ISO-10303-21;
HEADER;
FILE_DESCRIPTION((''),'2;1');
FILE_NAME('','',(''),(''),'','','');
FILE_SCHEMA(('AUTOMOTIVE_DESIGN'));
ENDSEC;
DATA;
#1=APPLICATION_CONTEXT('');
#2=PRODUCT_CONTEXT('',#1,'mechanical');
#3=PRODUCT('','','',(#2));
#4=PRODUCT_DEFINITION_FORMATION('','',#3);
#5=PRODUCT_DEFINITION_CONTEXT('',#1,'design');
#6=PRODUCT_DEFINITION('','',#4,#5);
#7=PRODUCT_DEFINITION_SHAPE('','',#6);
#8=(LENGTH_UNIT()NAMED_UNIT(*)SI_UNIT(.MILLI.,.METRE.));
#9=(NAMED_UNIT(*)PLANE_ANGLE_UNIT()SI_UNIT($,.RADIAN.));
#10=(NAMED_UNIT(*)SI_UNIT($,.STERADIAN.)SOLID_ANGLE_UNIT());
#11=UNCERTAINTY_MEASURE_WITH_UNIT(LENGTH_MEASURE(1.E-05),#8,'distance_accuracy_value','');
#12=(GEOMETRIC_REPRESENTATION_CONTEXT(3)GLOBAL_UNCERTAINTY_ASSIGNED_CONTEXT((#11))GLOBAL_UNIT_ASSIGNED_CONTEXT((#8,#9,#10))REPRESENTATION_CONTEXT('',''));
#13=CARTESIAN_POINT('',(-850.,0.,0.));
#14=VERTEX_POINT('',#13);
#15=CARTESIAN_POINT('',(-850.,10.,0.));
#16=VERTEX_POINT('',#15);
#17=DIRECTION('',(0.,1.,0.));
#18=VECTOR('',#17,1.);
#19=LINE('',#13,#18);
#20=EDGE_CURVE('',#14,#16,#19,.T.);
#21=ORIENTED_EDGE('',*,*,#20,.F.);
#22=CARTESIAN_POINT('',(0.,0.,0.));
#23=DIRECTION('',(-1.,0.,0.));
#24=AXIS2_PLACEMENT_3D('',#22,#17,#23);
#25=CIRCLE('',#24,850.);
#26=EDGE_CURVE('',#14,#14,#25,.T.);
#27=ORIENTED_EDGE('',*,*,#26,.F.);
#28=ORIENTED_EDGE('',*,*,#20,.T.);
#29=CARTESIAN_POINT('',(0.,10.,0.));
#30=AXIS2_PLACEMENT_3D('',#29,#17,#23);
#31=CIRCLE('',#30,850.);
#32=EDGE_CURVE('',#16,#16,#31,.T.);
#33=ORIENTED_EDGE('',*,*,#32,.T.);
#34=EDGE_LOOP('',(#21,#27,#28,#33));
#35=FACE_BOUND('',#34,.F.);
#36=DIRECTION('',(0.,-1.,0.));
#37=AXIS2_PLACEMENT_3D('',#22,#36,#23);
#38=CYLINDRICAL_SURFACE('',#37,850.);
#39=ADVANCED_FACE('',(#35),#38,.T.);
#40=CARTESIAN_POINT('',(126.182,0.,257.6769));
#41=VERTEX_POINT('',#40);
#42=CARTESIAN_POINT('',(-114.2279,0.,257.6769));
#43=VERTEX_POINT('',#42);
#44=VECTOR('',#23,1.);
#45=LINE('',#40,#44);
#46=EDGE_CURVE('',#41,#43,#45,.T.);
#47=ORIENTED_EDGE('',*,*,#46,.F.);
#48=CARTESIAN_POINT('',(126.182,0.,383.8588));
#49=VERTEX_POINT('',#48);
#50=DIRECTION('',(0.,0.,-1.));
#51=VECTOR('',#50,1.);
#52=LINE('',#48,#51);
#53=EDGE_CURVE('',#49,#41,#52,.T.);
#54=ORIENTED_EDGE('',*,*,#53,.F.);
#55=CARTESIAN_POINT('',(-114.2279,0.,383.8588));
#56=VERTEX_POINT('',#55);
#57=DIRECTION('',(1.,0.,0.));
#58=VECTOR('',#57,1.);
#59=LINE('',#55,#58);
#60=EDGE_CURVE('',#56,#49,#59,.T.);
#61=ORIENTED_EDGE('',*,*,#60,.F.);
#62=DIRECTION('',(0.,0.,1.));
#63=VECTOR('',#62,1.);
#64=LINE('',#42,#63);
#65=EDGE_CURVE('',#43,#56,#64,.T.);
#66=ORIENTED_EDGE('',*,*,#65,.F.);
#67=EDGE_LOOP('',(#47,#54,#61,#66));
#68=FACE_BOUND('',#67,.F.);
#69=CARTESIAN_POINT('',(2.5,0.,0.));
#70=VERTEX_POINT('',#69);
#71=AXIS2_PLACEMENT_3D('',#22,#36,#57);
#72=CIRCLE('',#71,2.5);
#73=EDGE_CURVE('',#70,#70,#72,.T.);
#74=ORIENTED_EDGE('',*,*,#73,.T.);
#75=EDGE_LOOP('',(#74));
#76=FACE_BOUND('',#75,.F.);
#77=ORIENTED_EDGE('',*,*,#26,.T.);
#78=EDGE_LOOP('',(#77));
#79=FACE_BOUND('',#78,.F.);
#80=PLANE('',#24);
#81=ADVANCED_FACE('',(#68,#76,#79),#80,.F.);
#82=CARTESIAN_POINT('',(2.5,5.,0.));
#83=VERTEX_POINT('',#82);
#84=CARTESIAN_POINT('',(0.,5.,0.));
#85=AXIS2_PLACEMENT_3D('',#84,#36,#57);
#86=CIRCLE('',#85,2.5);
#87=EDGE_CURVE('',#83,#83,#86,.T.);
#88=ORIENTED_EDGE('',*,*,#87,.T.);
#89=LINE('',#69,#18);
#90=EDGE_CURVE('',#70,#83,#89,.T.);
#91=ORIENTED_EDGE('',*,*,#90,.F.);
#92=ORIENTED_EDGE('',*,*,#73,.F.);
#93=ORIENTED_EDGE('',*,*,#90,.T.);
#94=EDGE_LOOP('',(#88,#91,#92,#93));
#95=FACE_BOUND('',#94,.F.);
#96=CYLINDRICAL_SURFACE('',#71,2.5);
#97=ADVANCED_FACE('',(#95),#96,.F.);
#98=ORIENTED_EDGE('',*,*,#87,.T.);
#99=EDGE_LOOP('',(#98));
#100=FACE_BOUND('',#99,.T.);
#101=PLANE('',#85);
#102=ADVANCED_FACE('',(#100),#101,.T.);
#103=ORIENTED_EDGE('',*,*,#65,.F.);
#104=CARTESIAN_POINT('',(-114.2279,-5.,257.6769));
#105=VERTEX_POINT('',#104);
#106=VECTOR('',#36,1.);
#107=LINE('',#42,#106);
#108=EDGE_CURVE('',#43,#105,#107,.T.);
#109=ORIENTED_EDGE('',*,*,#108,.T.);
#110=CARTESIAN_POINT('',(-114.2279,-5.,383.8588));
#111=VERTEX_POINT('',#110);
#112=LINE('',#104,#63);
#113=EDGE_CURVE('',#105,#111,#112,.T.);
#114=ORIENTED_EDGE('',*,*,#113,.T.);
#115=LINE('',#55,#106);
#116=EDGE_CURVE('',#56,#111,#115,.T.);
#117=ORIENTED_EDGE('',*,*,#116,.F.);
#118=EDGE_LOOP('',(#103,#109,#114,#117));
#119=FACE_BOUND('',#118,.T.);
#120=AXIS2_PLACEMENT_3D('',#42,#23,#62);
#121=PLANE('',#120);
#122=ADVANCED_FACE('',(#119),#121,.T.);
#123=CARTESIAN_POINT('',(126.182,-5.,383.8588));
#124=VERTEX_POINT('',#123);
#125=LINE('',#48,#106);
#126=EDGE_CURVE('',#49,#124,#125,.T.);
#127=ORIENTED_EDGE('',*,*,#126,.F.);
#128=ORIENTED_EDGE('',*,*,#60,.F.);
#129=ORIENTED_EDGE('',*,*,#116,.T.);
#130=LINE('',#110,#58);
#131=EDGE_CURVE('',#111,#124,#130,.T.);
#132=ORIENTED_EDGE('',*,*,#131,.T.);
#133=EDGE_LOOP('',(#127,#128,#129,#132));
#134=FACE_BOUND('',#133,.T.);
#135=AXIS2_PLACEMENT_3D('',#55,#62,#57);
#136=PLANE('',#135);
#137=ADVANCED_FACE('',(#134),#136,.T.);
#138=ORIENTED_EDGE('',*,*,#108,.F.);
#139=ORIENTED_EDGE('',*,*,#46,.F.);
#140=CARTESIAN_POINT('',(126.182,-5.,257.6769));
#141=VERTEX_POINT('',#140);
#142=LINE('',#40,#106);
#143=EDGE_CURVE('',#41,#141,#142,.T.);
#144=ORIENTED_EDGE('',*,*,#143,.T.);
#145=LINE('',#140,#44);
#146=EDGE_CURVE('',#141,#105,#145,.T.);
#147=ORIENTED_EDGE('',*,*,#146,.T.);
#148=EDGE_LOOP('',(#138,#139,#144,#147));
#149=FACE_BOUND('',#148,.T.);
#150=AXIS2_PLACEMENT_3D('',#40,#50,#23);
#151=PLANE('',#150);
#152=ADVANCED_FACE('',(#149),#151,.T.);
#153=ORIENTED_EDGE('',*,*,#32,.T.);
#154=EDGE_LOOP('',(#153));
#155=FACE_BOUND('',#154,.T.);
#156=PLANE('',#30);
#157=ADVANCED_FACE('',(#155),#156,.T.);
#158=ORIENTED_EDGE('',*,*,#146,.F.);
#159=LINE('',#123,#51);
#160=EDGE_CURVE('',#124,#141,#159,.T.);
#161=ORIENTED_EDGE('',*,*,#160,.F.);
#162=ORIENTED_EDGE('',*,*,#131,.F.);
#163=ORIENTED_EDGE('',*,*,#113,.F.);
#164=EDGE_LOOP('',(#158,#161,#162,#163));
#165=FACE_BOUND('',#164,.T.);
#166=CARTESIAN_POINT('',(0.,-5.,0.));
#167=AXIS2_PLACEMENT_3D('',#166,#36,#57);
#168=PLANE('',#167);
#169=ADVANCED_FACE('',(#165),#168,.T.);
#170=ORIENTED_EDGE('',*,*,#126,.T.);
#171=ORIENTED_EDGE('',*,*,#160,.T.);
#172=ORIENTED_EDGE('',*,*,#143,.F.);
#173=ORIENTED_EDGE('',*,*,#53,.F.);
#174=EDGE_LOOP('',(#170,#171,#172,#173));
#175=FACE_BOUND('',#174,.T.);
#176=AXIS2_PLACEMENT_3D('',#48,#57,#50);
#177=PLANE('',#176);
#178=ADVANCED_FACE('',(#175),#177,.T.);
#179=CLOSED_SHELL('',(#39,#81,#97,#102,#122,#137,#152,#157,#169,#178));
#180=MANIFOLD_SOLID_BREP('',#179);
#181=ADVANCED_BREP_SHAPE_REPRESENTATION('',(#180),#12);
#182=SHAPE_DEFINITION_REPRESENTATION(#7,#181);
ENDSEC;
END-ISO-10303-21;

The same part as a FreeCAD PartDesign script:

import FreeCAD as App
import Part
import Sketcher

V = App.Vector
Q = App.Units.Quantity

doc = App.newDocument("Part")
body = doc.addObject("PartDesign::Body", "Body")

# Sketch on XZ plane
sketch1 = body.newObject("Sketcher::SketchObject", "Sketch")
sketch1.AttachmentSupport = (doc.getObject("XZ_Plane"), [""])
sketch1.MapMode = "FlatFace"
sketch1.addGeometry(Part.Circle(V(0, 0, 0), V(0, 0, 1), 850), False)
sketch1.addConstraint(Sketcher.Constraint("Coincident", 0, 3, -1, 1))
sketch1.addConstraint(Sketcher.Constraint("Diameter", 0, Q("1700 mm")))
pad1 = body.newObject("PartDesign::Pad", "Pad")
pad1.Profile = sketch1
pad1.Length = 10
pad1.Reversed = True

# Sketch on XZ plane
sketch2 = body.newObject("Sketcher::SketchObject", "Sketch001")
sketch2.AttachmentSupport = (doc.getObject("XZ_Plane"), [""])
sketch2.MapMode = "FlatFace"
sketch2.addGeometry(Part.Circle(V(0, 0, 0), V(0, 0, 1), 2.5), False)
sketch2.addConstraint(Sketcher.Constraint("Coincident", 0, 3, -1, 1))
sketch2.addConstraint(Sketcher.Constraint("Diameter", 0, Q("5 mm")))
pocket1 = body.newObject("PartDesign::Pocket", "Pocket")
pocket1.Profile = sketch2
pocket1.Length = 5

# Sketch on XZ plane
sketch3 = body.newObject("Sketcher::SketchObject", "Sketch002")
sketch3.AttachmentSupport = (doc.getObject("XZ_Plane"), [""])
sketch3.MapMode = "FlatFace"
sketch3.addGeometry(Part.LineSegment(V(126.182, 383.8588, 0), V(-114.2279, 383.8588, 0)), False)
sketch3.addGeometry(Part.LineSegment(V(-114.2279, 383.8588, 0), V(-114.2279, 257.6769, 0)), False)
sketch3.addGeometry(Part.LineSegment(V(-114.2279, 257.6769, 0), V(126.182, 257.6769, 0)), False)
sketch3.addGeometry(Part.LineSegment(V(126.182, 257.6769, 0), V(126.182, 383.8588, 0)), False)
sketch3.addConstraint(Sketcher.Constraint("Coincident", 0, 2, 1, 1))
sketch3.addConstraint(Sketcher.Constraint("Coincident", 1, 2, 2, 1))
sketch3.addConstraint(Sketcher.Constraint("Coincident", 2, 2, 3, 1))
sketch3.addConstraint(Sketcher.Constraint("Coincident", 3, 2, 0, 1))
sketch3.addConstraint(Sketcher.Constraint("Horizontal", 0))
sketch3.addConstraint(Sketcher.Constraint("Vertical", 1))
sketch3.addConstraint(Sketcher.Constraint("Horizontal", 2))
sketch3.addConstraint(Sketcher.Constraint("Vertical", 3))
sketch3.addConstraint(Sketcher.Constraint("DistanceX", 0, 2, 0, 1, Q("240.41 mm")))
sketch3.addConstraint(Sketcher.Constraint("DistanceY", 1, 2, 1, 1, Q("126.182 mm")))
sketch3.addConstraint(Sketcher.Constraint("DistanceX", 0, 2, -1, 1, Q("114.228 mm")))
sketch3.addConstraint(Sketcher.Constraint("DistanceY", -1, 1, 1, 2, Q("257.677 mm")))
pad2 = body.newObject("PartDesign::Pad", "Pad001")
pad2.Profile = sketch3
pad2.Length = 5

doc.recompute()
